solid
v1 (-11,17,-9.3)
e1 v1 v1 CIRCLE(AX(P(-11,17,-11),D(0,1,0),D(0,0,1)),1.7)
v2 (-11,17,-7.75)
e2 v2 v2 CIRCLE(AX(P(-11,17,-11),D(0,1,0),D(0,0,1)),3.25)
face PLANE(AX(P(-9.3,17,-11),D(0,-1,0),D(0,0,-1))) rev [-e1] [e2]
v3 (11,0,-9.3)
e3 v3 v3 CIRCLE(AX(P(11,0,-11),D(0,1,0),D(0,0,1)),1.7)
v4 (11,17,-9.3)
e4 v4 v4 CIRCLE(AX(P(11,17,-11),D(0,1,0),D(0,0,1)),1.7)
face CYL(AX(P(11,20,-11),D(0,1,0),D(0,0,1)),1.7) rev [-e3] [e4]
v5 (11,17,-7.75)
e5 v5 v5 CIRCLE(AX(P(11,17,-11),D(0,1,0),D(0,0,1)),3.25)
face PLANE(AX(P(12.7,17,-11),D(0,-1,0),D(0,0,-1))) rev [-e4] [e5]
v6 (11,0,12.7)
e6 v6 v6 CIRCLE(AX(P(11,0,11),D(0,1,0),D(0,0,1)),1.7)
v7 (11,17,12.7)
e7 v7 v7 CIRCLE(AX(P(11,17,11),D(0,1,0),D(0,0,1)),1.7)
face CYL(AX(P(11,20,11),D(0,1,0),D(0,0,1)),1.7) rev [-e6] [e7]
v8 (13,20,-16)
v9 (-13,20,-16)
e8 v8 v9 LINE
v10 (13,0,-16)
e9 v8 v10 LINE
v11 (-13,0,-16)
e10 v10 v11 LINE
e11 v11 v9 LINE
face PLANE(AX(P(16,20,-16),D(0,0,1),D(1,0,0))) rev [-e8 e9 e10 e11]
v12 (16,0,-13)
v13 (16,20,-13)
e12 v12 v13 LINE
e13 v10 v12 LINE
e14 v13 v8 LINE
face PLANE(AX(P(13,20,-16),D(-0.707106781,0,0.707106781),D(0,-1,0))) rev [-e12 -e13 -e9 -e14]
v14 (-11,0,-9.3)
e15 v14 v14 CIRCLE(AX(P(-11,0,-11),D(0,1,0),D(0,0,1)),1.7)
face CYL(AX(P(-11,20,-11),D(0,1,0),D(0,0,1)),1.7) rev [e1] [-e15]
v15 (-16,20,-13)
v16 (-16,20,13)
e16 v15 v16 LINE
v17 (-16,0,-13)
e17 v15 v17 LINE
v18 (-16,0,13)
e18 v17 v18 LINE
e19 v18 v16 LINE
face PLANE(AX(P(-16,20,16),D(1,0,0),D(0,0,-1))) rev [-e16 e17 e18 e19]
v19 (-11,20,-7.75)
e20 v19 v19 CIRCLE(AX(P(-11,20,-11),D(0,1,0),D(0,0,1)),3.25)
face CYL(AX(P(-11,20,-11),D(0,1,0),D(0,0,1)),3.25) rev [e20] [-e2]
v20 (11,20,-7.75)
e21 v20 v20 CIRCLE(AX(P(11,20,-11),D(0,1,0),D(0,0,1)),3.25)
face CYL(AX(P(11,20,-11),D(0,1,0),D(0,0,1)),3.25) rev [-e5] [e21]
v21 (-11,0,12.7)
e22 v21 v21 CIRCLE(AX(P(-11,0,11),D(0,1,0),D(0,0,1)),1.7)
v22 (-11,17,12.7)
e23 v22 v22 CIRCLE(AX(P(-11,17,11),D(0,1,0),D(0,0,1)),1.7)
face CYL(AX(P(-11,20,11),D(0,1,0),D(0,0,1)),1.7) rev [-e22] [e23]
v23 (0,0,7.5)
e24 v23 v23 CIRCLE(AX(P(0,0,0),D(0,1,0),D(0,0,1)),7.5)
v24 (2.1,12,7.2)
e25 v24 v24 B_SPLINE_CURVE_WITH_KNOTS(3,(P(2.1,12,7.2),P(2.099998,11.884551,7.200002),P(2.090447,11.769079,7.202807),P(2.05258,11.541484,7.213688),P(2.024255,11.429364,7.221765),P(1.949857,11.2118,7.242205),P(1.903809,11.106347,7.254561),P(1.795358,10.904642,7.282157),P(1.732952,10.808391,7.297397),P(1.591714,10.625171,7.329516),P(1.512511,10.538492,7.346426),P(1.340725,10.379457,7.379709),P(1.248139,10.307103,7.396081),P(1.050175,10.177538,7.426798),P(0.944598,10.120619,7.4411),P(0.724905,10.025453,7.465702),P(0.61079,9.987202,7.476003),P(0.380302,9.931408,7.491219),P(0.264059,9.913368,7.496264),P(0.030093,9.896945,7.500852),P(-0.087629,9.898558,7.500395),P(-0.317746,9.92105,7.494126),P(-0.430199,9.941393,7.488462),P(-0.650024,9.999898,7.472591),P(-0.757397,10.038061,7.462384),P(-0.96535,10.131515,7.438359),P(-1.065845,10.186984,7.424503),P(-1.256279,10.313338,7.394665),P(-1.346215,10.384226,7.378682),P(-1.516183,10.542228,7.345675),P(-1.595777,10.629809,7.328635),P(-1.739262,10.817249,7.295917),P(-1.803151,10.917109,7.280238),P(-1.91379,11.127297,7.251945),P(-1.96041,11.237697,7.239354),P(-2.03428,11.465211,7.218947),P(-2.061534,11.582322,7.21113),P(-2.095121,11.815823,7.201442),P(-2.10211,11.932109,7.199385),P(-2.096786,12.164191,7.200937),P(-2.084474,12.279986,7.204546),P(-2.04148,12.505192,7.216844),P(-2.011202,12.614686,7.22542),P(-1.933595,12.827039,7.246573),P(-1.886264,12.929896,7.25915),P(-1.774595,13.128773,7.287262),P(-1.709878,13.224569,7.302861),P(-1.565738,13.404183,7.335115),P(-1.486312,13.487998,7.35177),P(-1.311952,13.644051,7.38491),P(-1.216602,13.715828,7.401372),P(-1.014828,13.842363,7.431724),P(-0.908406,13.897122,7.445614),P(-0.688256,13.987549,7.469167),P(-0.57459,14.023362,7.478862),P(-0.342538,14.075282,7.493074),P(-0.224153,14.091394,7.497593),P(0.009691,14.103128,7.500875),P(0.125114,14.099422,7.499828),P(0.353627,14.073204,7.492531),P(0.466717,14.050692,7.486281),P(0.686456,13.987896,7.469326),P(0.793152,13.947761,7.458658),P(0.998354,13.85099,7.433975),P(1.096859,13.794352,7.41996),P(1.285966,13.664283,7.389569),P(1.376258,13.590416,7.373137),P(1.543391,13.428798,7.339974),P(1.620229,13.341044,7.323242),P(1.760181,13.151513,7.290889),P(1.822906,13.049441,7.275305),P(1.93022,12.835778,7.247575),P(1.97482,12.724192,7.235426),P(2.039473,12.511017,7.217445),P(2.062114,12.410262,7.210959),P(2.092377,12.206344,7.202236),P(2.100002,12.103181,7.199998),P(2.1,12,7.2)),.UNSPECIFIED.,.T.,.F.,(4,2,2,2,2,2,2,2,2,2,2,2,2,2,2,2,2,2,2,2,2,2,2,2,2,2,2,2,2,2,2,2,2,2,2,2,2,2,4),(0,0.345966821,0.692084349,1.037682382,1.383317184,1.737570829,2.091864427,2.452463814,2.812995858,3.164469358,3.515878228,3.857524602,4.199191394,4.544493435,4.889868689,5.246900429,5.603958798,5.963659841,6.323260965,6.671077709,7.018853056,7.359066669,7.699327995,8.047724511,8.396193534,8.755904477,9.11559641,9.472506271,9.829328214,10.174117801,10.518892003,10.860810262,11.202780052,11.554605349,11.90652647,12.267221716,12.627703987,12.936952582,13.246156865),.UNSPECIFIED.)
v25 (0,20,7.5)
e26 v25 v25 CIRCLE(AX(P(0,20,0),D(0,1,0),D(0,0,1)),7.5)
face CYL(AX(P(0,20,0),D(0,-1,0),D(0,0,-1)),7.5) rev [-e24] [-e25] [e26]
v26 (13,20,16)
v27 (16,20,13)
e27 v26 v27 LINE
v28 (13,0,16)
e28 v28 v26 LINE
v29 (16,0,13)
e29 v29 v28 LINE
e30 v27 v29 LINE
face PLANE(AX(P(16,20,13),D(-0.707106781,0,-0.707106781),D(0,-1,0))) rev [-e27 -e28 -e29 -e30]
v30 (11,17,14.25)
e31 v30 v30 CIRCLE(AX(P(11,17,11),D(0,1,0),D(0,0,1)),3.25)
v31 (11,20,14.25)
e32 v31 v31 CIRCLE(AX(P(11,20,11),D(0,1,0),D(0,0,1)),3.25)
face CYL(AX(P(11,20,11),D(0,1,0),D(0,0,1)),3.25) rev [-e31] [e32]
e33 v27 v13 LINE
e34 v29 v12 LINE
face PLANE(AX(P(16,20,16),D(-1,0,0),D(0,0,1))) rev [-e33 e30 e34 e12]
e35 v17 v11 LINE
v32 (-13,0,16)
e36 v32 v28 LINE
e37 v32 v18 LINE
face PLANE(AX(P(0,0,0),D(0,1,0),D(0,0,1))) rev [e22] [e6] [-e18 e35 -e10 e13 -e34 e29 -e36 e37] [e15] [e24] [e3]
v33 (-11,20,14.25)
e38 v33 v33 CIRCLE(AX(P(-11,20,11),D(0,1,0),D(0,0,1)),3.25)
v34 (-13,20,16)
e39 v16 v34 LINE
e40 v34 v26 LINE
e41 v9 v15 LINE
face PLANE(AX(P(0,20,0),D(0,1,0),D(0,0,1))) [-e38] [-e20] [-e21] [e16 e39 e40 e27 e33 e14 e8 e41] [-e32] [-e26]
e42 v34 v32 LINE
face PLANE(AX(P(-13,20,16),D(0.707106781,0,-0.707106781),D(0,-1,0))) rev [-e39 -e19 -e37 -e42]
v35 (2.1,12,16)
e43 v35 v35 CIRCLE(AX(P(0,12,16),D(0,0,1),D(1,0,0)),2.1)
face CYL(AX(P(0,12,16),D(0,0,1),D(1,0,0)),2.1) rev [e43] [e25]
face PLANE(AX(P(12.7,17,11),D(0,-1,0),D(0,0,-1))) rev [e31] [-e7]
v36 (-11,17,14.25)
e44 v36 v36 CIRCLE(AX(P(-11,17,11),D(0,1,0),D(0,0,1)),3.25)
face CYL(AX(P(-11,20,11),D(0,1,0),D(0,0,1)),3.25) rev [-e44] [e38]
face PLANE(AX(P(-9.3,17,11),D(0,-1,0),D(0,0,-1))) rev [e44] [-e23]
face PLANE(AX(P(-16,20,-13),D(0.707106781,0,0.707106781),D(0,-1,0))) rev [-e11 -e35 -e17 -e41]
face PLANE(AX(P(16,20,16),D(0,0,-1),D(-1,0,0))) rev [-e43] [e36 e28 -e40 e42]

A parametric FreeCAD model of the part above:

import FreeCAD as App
import Part
import Sketcher
Q = App.Units.Quantity


def edges_at(feature, points):
    """Names of the edges that pass closest to the given points."""
    edges = feature.Shape.Edges
    near = lambda p: min(range(len(edges)), key=lambda i: edges[i].distToShape(Part.Vertex(*p))[0])
    return sorted({f"Edge{near(p) + 1}" for p in points})

doc = App.newDocument("Part")
body = doc.addObject("PartDesign::Body", "Body")

sketch1 = body.newObject("Sketcher::SketchObject", "Sketch")
sketch1.AttachmentSupport = (doc.getObject("XZ_Plane"), [""])
sketch1.MapMode = "FlatFace"
sketch1.addGeometry([
    Part.LineSegment(App.Vector(-16, -16, 0), App.Vector(-16, 16, 0)),
    Part.LineSegment(App.Vector(-16, 16, 0), App.Vector(16, 16, 0)),
    Part.LineSegment(App.Vector(16, 16, 0), App.Vector(16, -16, 0)),
    Part.LineSegment(App.Vector(16, -16, 0), App.Vector(-16, -16, 0)),
    Part.Circle(App.Vector(0, 0, 0), App.Vector(0, 0, 1), 8),
], False)
sketch1.addConstraint([
    Sketcher.Constraint("Coincident", 0, 2, 1, 1),
    Sketcher.Constraint("Coincident", 1, 2, 2, 1),
    Sketcher.Constraint("Coincident", 2, 2, 3, 1),
    Sketcher.Constraint("Coincident", 3, 2, 0, 1),
    Sketcher.Constraint("Vertical", 0),
    Sketcher.Constraint("Horizontal", 1),
    Sketcher.Constraint("Vertical", 2),
    Sketcher.Constraint("Horizontal", 3),
    Sketcher.Constraint("Coincident", 4, 3, -1, 1),
    Sketcher.Constraint("Symmetric", 0, 2, 2, 2, -1, 1),
    Sketcher.Constraint("Equal", 3, 0),
    Sketcher.Constraint("Diameter", 4, Q("15 mm")),
    Sketcher.Constraint("DistanceX", 1, 1, 1, 2, Q("32 mm")),
])
pad1 = body.newObject("PartDesign::Pad", "Pad")
pad1.Profile = sketch1
pad1.Length = 20
pad1.Reversed = True

sketch2 = body.newObject("Sketcher::SketchObject", "Sketch001")
sketch2.AttachmentSupport = (doc.getObject("XZ_Plane"), [""])
sketch2.MapMode = "FlatFace"
sketch2.AttachmentOffset = App.Placement(App.Vector(0, 0, -20), App.Rotation())
sketch2.addGeometry([
    Part.Circle(App.Vector(-11, -11, 0), App.Vector(0, 0, 1), 1.7),
    Part.Circle(App.Vector(11, -11, 0), App.Vector(0, 0, 1), 1.7),
    Part.Circle(App.Vector(11, 11, 0), App.Vector(0, 0, 1), 1.7),
    Part.Circle(App.Vector(-11, 11, 0), App.Vector(0, 0, 1), 1.7),
], False)
sketch2.addConstraint([
    Sketcher.Constraint("Equal", 0, 1),
    Sketcher.Constraint("Equal", 1, 2),
    Sketcher.Constraint("Equal", 2, 3),
    Sketcher.Constraint("Symmetric", 0, 3, 2, 3, -1, 1),
    Sketcher.Constraint("Symmetric", 1, 3, 3, 3, -1, 1),
    Sketcher.Constraint("Symmetric", 0, 3, 1, 3, -2),
    Sketcher.Constraint("Diameter", 0, Q("3.4 mm")),
    Sketcher.Constraint("DistanceX", 0, 3, -1, 1, Q("11 mm")),
    Sketcher.Constraint("DistanceY", 0, 3, -1, 1, Q("11 mm")),
])
doc.recompute()
hole = body.newObject("PartDesign::Hole", "Hole")
hole.Profile = sketch2
hole.ThreadType = "None"
hole.Diameter = 3.4
hole.DepthType = "ThroughAll"
hole.HoleCutType = "Counterbore"
hole.HoleCutDiameter = 6.5
hole.HoleCutDepth = 3
hole.Reversed = True

sketch3 = body.newObject("Sketcher::SketchObject", "Sketch002")
sketch3.AttachmentSupport = (doc.getObject("XY_Plane"), [""])
sketch3.MapMode = "FlatFace"
sketch3.AttachmentOffset = App.Placement(App.Vector(0, 0, 16), App.Rotation())
sketch3.addGeometry(Part.Circle(App.Vector(0, 12, 0), App.Vector(0, 0, 1), 2.1), False)
sketch3.addConstraint([
    Sketcher.Constraint("PointOnObject", 0, 3, -2),
    Sketcher.Constraint("Diameter", 0, Q("4.2 mm")),
    Sketcher.Constraint("DistanceY", -1, 1, 0, 3, Q("12 mm")),
])
pocket1 = body.newObject("PartDesign::Pocket", "Pocket")
pocket1.Profile = sketch3
pocket1.Type = "UpToFirst"
doc.recompute()

chamfer = body.newObject("PartDesign::Chamfer", "Chamfer")
chamfer.Base = (pocket1, edges_at(pocket1, [
    (-16, 10, -16),
    (16, 10, -16),
    (16, 10, 16),
    (-16, 10, 16),
]))
chamfer.Size = 3

doc.recompute()
